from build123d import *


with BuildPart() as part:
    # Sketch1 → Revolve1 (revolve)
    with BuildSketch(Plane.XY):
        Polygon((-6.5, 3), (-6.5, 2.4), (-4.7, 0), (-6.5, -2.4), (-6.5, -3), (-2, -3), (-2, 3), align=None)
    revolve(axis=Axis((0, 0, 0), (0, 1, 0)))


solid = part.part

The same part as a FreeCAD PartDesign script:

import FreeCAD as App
import Part
import Sketcher
from FreeCAD import Vector
Q = App.Units.Quantity


def add_polygon(sketch, points):
    """Adds a closed chain of lines whose ends are joined by coincident constraints."""
    first, n = sketch.GeometryCount, len(points)
    for a, b in zip(points, points[1:] + points[:1]):
        sketch.addGeometry(Part.LineSegment(App.Vector(*a, 0), App.Vector(*b, 0)), False)
    for i in range(n):
        sketch.addConstraint(Sketcher.Constraint("Coincident", first + i, 2, first + (i + 1) % n, 1))

doc = App.newDocument("Part")
params = doc.addObject("Spreadsheet::Sheet", "Params")
for row, (alias, value) in enumerate([
    ("sketch1_height", "6 mm"),
    ("sketch1_length", "3 mm"),
    ("sketch1_width", "4.5 mm"),
    ("sketch1_height2", "0.6 mm"),
    ("revolution_angle", "360 deg"),
], start=1):
    params.set(f"A{row}", alias)
    params.set(f"B{row}", "=" + value)
    params.setAlias(f"B{row}", alias)

body = doc.addObject("PartDesign::Body", "Body")

sketch1 = body.newObject("Sketcher::SketchObject", "Sketch")
sketch1.AttachmentSupport = (doc.getObject("XY_Plane"), [""])
sketch1.MapMode = "FlatFace"
add_polygon(sketch1, [(-6.5, 3), (-6.5, 2.4), (-4.7, 0), (-6.5, -2.4), (-6.5, -3), (-2, -3), (-2, 3)])
sketch1.addConstraint(Sketcher.Constraint("Vertical", 0))
sketch1.addConstraint(Sketcher.Constraint("Vertical", 3))
sketch1.addConstraint(Sketcher.Constraint("Horizontal", 4))
sketch1.addConstraint(Sketcher.Constraint("Vertical", 5))
sketch1.addConstraint(Sketcher.Constraint("Horizontal", 6))
sketch1.addConstraint(Sketcher.Constraint("Symmetric", 0, 2, 2, 2, -1))
sketch1.addConstraint(Sketcher.Constraint("PointOnObject", 1, 2, -1))
sketch1.addConstraint(Sketcher.Constraint("Equal", 0, 3))
sketch1.addConstraint(Sketcher.Constraint("DistanceY", 5, 1, 5, 2, Q("6 mm")))
sketch1.addConstraint(Sketcher.Constraint("Distance", 1, Q("3 mm")))
sketch1.addConstraint(Sketcher.Constraint("DistanceX", 4, 1, 4, 2, Q("4.5 mm")))
sketch1.addConstraint(Sketcher.Constraint("DistanceY", 0, 2, 0, 1, Q("0.6 mm")))
sketch1.addConstraint(Sketcher.Constraint("DistanceX", 4, 2, -1, 1, Q("2 mm")))
sketch1.setExpression("Constraints[15]", "Params.sketch1_height")
sketch1.setExpression("Constraints[16]", "Params.sketch1_length")
sketch1.setExpression("Constraints[17]", "Params.sketch1_width")
sketch1.setExpression("Constraints[18]", "Params.sketch1_height2")
revolution = body.newObject("PartDesign::Revolution", "Revolution")
revolution.Profile = sketch1
revolution.ReferenceAxis = (sketch1, ["V_Axis"])
revolution.setExpression("Angle", "Params.revolution_angle")

doc.recompute()
